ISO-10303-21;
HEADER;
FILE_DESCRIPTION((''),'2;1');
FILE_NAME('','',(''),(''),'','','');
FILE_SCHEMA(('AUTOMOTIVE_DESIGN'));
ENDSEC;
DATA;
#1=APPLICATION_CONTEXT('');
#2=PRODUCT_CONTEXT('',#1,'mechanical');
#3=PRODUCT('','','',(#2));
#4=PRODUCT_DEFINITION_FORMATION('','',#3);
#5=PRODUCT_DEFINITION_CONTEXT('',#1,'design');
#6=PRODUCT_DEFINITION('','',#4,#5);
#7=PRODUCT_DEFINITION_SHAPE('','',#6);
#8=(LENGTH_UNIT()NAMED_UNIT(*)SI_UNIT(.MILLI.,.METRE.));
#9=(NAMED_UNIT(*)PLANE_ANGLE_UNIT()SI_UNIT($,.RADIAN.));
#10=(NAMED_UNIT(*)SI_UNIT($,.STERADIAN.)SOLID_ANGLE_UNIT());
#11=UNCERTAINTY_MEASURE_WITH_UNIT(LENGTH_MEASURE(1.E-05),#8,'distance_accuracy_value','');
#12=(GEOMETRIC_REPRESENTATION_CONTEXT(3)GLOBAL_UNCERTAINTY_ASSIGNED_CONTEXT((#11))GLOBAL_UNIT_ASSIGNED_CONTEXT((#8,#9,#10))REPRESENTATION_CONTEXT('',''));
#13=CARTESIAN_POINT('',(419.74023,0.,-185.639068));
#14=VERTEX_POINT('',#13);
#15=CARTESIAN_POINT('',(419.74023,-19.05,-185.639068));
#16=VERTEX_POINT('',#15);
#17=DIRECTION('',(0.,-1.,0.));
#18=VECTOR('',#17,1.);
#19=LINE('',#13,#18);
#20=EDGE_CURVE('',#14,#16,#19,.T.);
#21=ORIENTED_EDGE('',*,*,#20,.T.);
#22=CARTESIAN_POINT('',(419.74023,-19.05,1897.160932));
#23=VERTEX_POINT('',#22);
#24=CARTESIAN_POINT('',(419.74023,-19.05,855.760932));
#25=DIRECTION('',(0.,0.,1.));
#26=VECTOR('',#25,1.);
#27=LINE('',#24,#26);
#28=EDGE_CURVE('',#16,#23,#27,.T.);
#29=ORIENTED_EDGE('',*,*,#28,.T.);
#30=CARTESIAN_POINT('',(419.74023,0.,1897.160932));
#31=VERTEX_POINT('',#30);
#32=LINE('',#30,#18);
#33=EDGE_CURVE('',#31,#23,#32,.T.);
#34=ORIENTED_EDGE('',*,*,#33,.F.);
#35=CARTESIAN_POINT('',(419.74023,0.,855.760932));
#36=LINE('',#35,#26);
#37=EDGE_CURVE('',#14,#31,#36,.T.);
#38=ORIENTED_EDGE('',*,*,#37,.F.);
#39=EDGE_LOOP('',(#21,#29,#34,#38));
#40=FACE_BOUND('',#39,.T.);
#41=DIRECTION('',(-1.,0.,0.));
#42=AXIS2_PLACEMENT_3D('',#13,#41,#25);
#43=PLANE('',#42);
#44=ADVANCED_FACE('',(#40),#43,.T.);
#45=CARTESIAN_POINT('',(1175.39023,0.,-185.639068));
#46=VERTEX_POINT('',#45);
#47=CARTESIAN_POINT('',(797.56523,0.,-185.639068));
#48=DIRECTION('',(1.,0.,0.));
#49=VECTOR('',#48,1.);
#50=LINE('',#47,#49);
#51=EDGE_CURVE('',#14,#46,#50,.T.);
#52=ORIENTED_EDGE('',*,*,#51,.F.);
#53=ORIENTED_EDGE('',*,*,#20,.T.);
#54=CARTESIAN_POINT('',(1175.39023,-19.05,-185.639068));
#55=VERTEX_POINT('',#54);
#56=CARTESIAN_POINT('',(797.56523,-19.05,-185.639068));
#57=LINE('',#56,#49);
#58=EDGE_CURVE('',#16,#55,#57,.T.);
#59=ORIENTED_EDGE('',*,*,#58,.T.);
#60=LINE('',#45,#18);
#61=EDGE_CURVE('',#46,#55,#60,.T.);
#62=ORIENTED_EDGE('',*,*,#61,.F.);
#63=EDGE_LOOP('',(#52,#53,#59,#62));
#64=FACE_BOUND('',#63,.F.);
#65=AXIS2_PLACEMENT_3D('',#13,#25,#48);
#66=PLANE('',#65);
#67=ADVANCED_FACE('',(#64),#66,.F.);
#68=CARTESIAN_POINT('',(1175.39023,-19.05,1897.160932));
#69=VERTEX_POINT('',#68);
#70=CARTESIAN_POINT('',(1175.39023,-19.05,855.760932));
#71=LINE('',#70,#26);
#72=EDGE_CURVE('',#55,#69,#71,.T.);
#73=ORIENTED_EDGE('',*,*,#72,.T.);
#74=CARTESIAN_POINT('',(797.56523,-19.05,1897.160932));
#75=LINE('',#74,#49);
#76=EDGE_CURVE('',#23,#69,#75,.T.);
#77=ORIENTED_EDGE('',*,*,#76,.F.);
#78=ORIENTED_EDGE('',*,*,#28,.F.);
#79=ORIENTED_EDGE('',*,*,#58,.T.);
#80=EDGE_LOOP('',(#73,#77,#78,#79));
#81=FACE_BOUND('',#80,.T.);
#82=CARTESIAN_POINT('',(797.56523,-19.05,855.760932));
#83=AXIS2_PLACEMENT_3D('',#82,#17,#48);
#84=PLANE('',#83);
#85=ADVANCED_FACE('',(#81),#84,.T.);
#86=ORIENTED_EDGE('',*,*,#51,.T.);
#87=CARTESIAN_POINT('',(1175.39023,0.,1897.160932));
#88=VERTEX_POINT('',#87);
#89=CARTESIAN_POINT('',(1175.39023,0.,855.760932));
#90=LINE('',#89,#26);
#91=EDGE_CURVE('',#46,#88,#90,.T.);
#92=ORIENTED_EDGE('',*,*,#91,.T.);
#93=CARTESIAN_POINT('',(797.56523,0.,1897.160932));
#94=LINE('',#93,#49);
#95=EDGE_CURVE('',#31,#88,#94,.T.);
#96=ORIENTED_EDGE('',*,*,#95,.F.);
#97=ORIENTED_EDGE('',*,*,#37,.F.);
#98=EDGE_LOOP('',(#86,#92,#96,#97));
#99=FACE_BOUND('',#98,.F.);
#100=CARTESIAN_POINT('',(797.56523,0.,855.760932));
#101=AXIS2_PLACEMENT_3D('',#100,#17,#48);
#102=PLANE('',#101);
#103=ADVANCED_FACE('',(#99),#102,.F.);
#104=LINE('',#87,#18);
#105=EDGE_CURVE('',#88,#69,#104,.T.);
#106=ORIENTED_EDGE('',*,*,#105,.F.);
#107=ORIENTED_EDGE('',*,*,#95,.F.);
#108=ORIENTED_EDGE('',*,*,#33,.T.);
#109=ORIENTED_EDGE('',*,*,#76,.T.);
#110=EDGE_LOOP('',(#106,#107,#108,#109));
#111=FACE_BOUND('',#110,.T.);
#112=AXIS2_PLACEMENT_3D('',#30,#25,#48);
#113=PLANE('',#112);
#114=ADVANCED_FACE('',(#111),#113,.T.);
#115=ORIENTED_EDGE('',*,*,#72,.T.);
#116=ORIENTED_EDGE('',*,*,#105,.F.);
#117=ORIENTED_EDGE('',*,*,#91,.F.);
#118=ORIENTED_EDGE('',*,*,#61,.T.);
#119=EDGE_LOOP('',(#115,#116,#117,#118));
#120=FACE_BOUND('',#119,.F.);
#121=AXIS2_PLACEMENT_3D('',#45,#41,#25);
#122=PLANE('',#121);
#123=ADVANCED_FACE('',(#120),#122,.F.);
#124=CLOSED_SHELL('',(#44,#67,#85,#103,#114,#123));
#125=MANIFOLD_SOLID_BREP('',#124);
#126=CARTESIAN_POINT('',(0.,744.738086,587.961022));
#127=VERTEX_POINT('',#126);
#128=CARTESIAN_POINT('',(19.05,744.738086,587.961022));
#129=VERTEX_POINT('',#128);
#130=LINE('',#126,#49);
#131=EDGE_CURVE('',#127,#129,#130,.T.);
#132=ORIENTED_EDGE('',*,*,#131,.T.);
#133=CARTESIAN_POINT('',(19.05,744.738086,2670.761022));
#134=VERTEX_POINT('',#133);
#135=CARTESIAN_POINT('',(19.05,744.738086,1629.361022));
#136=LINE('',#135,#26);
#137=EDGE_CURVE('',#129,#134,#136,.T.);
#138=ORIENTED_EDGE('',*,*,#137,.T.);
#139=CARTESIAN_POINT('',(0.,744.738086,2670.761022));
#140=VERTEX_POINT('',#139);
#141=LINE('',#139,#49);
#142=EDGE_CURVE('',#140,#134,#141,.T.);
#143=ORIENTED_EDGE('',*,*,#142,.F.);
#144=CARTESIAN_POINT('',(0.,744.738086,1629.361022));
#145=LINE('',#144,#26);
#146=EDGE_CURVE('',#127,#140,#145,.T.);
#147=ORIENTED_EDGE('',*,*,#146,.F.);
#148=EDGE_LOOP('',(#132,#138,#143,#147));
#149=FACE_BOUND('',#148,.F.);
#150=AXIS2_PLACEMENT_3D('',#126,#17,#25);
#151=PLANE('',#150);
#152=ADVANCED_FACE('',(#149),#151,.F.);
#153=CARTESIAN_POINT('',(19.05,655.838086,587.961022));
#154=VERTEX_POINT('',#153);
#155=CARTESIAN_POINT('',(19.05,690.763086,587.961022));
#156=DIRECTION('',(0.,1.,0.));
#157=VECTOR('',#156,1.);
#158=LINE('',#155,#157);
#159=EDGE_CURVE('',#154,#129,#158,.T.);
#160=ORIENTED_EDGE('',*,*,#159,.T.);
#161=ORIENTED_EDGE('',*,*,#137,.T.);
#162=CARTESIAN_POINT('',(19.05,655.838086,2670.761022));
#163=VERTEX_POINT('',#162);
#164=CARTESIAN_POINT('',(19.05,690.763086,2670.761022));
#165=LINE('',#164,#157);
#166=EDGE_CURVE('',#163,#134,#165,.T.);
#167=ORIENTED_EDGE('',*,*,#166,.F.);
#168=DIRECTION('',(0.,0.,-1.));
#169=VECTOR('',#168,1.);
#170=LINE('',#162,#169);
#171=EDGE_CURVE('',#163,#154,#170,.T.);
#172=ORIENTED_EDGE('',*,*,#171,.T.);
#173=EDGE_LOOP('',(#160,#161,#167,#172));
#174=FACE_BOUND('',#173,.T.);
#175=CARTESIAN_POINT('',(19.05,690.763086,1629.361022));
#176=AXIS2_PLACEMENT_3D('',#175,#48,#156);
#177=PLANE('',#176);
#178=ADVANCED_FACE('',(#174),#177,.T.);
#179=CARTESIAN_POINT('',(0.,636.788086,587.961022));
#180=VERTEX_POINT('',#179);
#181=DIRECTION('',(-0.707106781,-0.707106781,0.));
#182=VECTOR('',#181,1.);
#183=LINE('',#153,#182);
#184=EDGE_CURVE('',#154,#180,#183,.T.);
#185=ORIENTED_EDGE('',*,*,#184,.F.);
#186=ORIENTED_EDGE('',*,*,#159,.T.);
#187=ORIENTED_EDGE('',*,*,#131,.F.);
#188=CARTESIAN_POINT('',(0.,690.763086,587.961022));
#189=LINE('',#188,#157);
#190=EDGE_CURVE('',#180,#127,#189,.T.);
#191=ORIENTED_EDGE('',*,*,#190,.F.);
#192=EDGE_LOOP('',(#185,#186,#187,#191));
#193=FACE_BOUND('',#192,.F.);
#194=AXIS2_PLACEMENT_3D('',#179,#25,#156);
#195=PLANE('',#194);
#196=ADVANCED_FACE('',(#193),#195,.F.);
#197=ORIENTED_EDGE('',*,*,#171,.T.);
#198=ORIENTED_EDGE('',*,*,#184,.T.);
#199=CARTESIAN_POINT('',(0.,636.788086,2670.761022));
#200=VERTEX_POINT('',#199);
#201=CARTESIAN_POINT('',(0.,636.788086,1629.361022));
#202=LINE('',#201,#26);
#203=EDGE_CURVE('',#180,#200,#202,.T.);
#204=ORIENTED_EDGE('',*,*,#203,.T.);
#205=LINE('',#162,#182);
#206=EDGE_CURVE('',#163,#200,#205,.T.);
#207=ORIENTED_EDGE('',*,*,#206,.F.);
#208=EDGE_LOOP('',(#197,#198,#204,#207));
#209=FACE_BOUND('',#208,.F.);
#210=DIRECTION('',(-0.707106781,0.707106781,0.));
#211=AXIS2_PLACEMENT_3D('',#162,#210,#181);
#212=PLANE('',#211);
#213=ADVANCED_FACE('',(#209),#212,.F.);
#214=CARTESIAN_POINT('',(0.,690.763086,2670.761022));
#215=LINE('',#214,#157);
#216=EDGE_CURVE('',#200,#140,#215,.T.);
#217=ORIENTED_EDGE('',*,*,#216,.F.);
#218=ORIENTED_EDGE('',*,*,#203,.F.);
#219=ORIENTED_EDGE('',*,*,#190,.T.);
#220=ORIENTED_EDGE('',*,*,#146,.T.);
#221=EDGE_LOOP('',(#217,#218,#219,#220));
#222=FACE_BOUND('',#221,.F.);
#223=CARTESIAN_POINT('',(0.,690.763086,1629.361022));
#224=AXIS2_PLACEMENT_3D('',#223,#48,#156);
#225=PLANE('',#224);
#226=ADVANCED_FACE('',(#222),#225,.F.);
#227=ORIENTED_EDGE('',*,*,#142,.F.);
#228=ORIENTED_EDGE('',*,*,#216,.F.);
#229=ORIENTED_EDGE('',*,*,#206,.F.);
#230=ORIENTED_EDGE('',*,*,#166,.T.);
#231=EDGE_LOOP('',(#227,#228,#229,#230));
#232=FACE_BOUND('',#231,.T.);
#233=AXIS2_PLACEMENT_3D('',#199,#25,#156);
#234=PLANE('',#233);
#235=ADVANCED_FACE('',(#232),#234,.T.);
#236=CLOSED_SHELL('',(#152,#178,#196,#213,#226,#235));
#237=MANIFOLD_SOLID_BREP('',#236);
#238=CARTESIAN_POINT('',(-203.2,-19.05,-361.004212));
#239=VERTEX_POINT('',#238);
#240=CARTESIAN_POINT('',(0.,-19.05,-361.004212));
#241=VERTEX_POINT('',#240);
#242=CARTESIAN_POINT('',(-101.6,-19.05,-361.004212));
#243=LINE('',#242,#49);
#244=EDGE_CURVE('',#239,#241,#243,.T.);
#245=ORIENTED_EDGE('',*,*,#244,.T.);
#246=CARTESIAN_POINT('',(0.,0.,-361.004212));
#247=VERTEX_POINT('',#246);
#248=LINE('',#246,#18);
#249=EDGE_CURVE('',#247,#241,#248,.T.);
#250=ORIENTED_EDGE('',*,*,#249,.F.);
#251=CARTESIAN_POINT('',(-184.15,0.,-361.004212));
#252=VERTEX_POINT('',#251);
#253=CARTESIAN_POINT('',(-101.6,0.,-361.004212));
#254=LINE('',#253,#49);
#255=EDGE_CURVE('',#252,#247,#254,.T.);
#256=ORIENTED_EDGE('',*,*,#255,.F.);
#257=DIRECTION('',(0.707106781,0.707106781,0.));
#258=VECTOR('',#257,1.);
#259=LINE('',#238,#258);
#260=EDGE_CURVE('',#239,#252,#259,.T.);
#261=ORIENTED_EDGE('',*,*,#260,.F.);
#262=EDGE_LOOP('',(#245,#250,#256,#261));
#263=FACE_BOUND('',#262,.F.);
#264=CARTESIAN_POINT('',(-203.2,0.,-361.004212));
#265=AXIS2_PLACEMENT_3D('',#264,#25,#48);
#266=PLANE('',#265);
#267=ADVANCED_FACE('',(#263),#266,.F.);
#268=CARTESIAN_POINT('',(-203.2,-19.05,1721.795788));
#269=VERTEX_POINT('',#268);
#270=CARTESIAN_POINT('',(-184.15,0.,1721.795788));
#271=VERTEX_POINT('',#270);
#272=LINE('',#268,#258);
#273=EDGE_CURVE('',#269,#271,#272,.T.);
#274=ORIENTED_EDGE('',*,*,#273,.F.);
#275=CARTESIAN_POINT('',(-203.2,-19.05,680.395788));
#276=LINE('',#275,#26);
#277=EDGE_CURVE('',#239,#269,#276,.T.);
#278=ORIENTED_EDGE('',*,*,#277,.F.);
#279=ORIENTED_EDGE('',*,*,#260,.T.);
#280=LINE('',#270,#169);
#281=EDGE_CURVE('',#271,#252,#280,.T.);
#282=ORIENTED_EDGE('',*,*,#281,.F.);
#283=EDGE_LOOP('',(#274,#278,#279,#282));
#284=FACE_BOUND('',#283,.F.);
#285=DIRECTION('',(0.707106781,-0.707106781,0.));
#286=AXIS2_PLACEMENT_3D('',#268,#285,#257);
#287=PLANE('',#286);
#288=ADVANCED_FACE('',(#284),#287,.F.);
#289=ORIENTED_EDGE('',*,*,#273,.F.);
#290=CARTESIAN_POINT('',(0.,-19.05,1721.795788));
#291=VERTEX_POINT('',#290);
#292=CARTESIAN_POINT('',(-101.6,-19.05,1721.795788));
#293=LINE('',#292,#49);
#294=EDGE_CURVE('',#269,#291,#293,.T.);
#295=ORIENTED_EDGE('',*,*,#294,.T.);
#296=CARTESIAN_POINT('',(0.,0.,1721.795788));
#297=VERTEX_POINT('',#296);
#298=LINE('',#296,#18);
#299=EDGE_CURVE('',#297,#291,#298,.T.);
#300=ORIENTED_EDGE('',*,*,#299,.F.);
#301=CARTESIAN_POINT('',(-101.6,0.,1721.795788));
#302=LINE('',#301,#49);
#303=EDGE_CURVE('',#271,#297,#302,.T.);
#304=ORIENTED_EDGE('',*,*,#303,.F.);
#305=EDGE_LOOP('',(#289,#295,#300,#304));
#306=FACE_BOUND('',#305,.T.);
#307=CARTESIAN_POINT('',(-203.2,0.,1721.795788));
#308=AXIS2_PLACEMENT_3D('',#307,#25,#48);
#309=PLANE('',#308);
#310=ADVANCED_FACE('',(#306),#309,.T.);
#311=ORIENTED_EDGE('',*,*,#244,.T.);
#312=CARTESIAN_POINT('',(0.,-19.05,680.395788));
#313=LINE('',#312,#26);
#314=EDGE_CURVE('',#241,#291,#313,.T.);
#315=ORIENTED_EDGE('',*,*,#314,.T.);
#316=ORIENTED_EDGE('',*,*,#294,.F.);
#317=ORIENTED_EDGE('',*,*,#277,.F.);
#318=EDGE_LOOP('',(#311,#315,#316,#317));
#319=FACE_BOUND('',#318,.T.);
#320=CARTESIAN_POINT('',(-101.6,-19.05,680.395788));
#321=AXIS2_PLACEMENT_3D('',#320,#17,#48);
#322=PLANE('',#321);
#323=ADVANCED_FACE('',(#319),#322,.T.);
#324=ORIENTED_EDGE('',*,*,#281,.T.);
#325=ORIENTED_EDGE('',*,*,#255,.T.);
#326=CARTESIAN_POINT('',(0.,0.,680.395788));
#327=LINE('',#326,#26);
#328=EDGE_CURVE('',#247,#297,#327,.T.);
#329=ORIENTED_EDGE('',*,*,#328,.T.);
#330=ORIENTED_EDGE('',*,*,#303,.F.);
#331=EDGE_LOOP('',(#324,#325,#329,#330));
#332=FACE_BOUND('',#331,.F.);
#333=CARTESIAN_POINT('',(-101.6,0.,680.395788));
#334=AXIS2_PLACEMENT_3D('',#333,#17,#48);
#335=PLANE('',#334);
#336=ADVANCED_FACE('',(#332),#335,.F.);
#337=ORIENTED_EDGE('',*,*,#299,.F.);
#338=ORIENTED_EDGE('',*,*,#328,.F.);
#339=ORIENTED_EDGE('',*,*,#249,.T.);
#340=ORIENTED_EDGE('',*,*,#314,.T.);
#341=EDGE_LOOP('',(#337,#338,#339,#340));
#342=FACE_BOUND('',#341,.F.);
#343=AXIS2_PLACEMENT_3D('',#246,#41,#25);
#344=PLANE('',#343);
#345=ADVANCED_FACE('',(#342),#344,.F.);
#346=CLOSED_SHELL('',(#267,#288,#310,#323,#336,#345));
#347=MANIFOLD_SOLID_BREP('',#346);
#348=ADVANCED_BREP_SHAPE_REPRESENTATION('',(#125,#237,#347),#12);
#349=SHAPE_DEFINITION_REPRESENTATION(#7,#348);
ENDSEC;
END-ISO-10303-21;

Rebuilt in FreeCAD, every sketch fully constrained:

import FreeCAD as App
import Part
import Sketcher
Q = App.Units.Quantity


def add_polygon(sketch, points):
    """Adds a closed chain of lines whose ends are joined by coincident constraints."""
    first, n = sketch.GeometryCount, len(points)
    for a, b in zip(points, points[1:] + points[:1]):
        sketch.addGeometry(Part.LineSegment(App.Vector(*a, 0), App.Vector(*b, 0)), False)
    for i in range(n):
        sketch.addConstraint(Sketcher.Constraint("Coincident", first + i, 2, first + (i + 1) % n, 1))

doc = App.newDocument("Part")
params = doc.addObject("Spreadsheet::Sheet", "Params")
for row, (alias, value) in enumerate([
    ("sketch1_width", "8 in"),
    ("sketch1_height", "82 in"),
    ("pad1_length", "0.75 in"),
    ("sketch2_width", "0.75 in"),
    ("pocket1_length", "82 in"),
    ("sketch3_height", "82 in"),
    ("sketch3_width", "29.75 in"),
    ("pad2_length", "0.75 in"),
    ("sketch4_height", "82 in"),
    ("sketch4_width", "4.25 in"),
    ("pad3_length", "0.75 in"),
    ("sketch5_width", "0.75 in"),
    ("pocket2_length", "82 in"),
], start=1):
    params.set(f"A{row}", alias)
    params.set(f"B{row}", "=" + value)
    params.setAlias(f"B{row}", alias)

body = doc.addObject("PartDesign::Body", "Body")

sketch1 = body.newObject("Sketcher::SketchObject", "Sketch")
sketch1.AttachmentSupport = (doc.getObject("XZ_Plane"), [""])
sketch1.MapMode = "FlatFace"
add_polygon(sketch1, [(-203.2, 1721.795788), (-203.2, -361.004212), (0, -361.004212), (0, 1721.795788)])
sketch1.addConstraint([
    Sketcher.Constraint("Vertical", 0),
    Sketcher.Constraint("Horizontal", 1),
    Sketcher.Constraint("Vertical", 2),
    Sketcher.Constraint("Horizontal", 3),
    Sketcher.Constraint("PointOnObject", 1, 2, -2),
    Sketcher.Constraint("DistanceX", 1, 1, 1, 2, Q("8 in")),
    Sketcher.Constraint("DistanceY", 0, 2, 0, 1, Q("82 in")),
    Sketcher.Constraint("DistanceY", 0, 2, -1, 1, Q("361.004212 mm")),
])
sketch1.setExpression("Constraints[9]", "Params.sketch1_width")
sketch1.setExpression("Constraints[10]", "Params.sketch1_height")
pad1 = body.newObject("PartDesign::Pad", "Pad")
pad1.Profile = sketch1
pad1.setExpression("Length", "Params.pad1_length")

sketch2 = body.newObject("Sketcher::SketchObject", "Sketch001")
sketch2.AttachmentSupport = (doc.getObject("XY_Plane"), [""])
sketch2.MapMode = "FlatFace"
sketch2.AttachmentOffset = App.Placement(App.Vector(0, 0, 1721.795788), App.Rotation())
add_polygon(sketch2, [(-203.2, 0), (-203.2, -19.05), (-184.15, 0)])
sketch2.addConstraint([
    Sketcher.Constraint("Vertical", 0),
    Sketcher.Constraint("Horizontal", 2),
    Sketcher.Constraint("PointOnObject", 1, 2, -1),
    Sketcher.Constraint("Equal", 2, 0),
    Sketcher.Constraint("DistanceX", 0, 2, -1, 1, Q("8 in")),
    Sketcher.Constraint("DistanceX", 2, 2, 2, 1, Q("0.75 in")),
])
sketch2.setExpression("Constraints[8]", "Params.sketch2_width")
pocket1 = body.newObject("PartDesign::Pocket", "Pocket")
pocket1.Profile = sketch2
pocket1.setExpression("Length", "Params.pocket1_length")
body2 = doc.addObject("PartDesign::Body", "Body001")

sketch3 = body2.newObject("Sketcher::SketchObject", "Sketch002")
sketch3.AttachmentSupport = (doc.getObject("XZ_Plane001"), [""])
sketch3.MapMode = "FlatFace"
add_polygon(sketch3, [(419.74023, 1897.160932), (419.74023, -185.639068), (1175.39023, -185.639068), (1175.39023, 1897.160932)])
sketch3.addConstraint([
    Sketcher.Constraint("Vertical", 0),
    Sketcher.Constraint("Horizontal", 1),
    Sketcher.Constraint("Vertical", 2),
    Sketcher.Constraint("Horizontal", 3),
    Sketcher.Constraint("DistanceY", 0, 2, 0, 1, Q("82 in")),
    Sketcher.Constraint("DistanceX", 1, 1, 1, 2, Q("29.75 in")),
    Sketcher.Constraint("DistanceX", -1, 1, 0, 2, Q("419.74023 mm")),
    Sketcher.Constraint("DistanceY", 0, 2, -1, 1, Q("185.639068 mm")),
])
sketch3.setExpression("Constraints[8]", "Params.sketch3_height")
sketch3.setExpression("Constraints[9]", "Params.sketch3_width")
pad2 = body2.newObject("PartDesign::Pad", "Pad001")
pad2.Profile = sketch3
pad2.setExpression("Length", "Params.pad2_length")
body3 = doc.addObject("PartDesign::Body", "Body002")

sketch4 = body3.newObject("Sketcher::SketchObject", "Sketch003")
sketch4.AttachmentSupport = (doc.getObject("YZ_Plane002"), [""])
sketch4.MapMode = "FlatFace"
add_polygon(sketch4, [(636.788086, 2670.761022), (636.788086, 587.961022), (744.738086, 587.961022), (744.738086, 2670.761022)])
sketch4.addConstraint([
    Sketcher.Constraint("Vertical", 0),
    Sketcher.Constraint("Horizontal", 1),
    Sketcher.Constraint("Vertical", 2),
    Sketcher.Constraint("Horizontal", 3),
    Sketcher.Constraint("DistanceY", 0, 2, 0, 1, Q("82 in")),
    Sketcher.Constraint("DistanceX", 1, 1, 1, 2, Q("4.25 in")),
    Sketcher.Constraint("DistanceY", -1, 1, 0, 2, Q("587.961022 mm")),
    Sketcher.Constraint("DistanceX", -1, 1, 0, 2, Q("636.788086 mm")),
])
sketch4.setExpression("Constraints[8]", "Params.sketch4_height")
sketch4.setExpression("Constraints[9]", "Params.sketch4_width")
pad3 = body3.newObject("PartDesign::Pad", "Pad002")
pad3.Profile = sketch4
pad3.setExpression("Length", "Params.pad3_length")

sketch5 = body3.newObject("Sketcher::SketchObject", "Sketch004")
sketch5.AttachmentSupport = (doc.getObject("XY_Plane002"), [""])
sketch5.MapMode = "FlatFace"
sketch5.AttachmentOffset = App.Placement(App.Vector(0, 0, 2670.761022), App.Rotation())
add_polygon(sketch5, [(19.05, 636.788086), (19.05, 655.838086), (0, 636.788086)])
sketch5.addConstraint([
    Sketcher.Constraint("Vertical", 0),
    Sketcher.Constraint("Horizontal", 2),
    Sketcher.Constraint("PointOnObject", 1, 2, -2),
    Sketcher.Constraint("Equal", 2, 0),
    Sketcher.Constraint("DistanceX", 2, 1, 2, 2, Q("0.75 in")),
    Sketcher.Constraint("DistanceY", -1, 1, 0, 2, Q("655.838086 mm")),
])
sketch5.setExpression("Constraints[7]", "Params.sketch5_width")
pocket2 = body3.newObject("PartDesign::Pocket", "Pocket001")
pocket2.Profile = sketch5
pocket2.setExpression("Length", "Params.pocket2_length")

doc.recompute()
